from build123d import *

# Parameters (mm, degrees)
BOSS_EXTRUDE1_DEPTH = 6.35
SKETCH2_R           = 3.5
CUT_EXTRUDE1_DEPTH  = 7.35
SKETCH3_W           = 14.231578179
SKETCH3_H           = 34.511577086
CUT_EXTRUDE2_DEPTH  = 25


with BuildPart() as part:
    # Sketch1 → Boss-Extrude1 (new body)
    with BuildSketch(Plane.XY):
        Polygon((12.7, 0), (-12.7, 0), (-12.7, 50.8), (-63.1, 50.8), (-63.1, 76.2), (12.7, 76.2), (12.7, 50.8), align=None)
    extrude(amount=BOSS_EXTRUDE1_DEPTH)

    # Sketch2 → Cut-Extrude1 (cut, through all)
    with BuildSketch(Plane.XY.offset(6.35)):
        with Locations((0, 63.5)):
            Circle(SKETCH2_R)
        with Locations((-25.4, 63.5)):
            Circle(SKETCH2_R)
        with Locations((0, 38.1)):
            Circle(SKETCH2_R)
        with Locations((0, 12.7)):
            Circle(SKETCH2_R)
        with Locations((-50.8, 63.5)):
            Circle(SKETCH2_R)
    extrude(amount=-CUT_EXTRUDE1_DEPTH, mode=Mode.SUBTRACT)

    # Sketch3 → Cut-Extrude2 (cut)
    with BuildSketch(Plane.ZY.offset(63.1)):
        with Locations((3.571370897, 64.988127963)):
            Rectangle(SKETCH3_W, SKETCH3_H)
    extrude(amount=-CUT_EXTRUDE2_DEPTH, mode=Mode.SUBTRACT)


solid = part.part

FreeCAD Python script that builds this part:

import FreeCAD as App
import Part
import Sketcher

V = App.Vector
Q = App.Units.Quantity

doc = App.newDocument("Part")
body = doc.addObject("PartDesign::Body", "Body")

sketch1 = doc.addObject("Sketcher::SketchObject", "Sketch")
body.addObject(sketch1)
sketch1.AttachmentSupport = (doc.XY_Plane, [""])
sketch1.MapMode = "FlatFace"
sketch1.addGeometry([
    Part.LineSegment(V(-12.7, 0, 0), V(12.7, 0, 0)),
    Part.LineSegment(V(12.7, 0, 0), V(12.7, 76.2, 0)),
    Part.LineSegment(V(12.7, 76.2, 0), V(-63.1, 76.2, 0)),
    Part.LineSegment(V(-63.1, 76.2, 0), V(-63.1, 50.8, 0)),
    Part.LineSegment(V(-63.1, 50.8, 0), V(-12.7, 50.8, 0)),
    Part.LineSegment(V(-12.7, 50.8, 0), V(-12.7, 0, 0)),
], False)
sketch1.addConstraint([
    Sketcher.Constraint("Coincident", 0, 2, 1, 1),
    Sketcher.Constraint("Coincident", 1, 2, 2, 1),
    Sketcher.Constraint("Coincident", 2, 2, 3, 1),
    Sketcher.Constraint("Coincident", 3, 2, 4, 1),
    Sketcher.Constraint("Coincident", 4, 2, 5, 1),
    Sketcher.Constraint("Coincident", 5, 2, 0, 1),
    Sketcher.Constraint("Horizontal", 0),
    Sketcher.Constraint("Vertical", 1),
    Sketcher.Constraint("Horizontal", 2),
    Sketcher.Constraint("Vertical", 3),
    Sketcher.Constraint("Horizontal", 4),
    Sketcher.Constraint("Vertical", 5),
    Sketcher.Constraint("Symmetric", 0, 2, 5, 2, -1, 1),
    Sketcher.Constraint("Equal", 0, 3),
    Sketcher.Constraint("DistanceX", 0, 1, 0, 2, Q("25.4 mm")),
    Sketcher.Constraint("DistanceX", 2, 2, 2, 1, Q("75.8 mm")),
    Sketcher.Constraint("DistanceY", 1, 1, 1, 2, Q("76.2 mm")),
])
pad1 = doc.addObject("PartDesign::Pad", "Pad")
body.addObject(pad1)
pad1.Profile = sketch1
pad1.Length = 6.35

sketch2 = doc.addObject("Sketcher::SketchObject", "Sketch001")
body.addObject(sketch2)
sketch2.AttachmentSupport = (doc.XY_Plane, [""])
sketch2.MapMode = "FlatFace"
sketch2.AttachmentOffset = App.Placement(V(0, 0, 6.35), App.Rotation())
sketch2.addGeometry([
    Part.Circle(V(0, 63.5, 0), V(0, 0, 1), 3.5),
    Part.Circle(V(-25.4, 63.5, 0), V(0, 0, 1), 3.5),
    Part.Circle(V(0, 38.1, 0), V(0, 0, 1), 3.5),
    Part.Circle(V(0, 12.7, 0), V(0, 0, 1), 3.5),
    Part.Circle(V(-50.8, 63.5, 0), V(0, 0, 1), 3.5),
], False)
sketch2.addConstraint([
    Sketcher.Constraint("Equal", 0, 1),
    Sketcher.Constraint("Equal", 1, 2),
    Sketcher.Constraint("Equal", 2, 3),
    Sketcher.Constraint("Equal", 3, 4),
    Sketcher.Constraint("PointOnObject", 0, 3, -2),
    Sketcher.Constraint("PointOnObject", 2, 3, -2),
    Sketcher.Constraint("PointOnObject", 3, 3, -2),
    Sketcher.Constraint("Horizontal", 0, 3, 1, 3),
    Sketcher.Constraint("Horizontal", 1, 3, 4, 3),
    Sketcher.Constraint("Diameter", 0, Q("7 mm")),
    Sketcher.Constraint("DistanceY", -1, 1, 0, 3, Q("63.5 mm")),
    Sketcher.Constraint("DistanceX", 1, 3, -1, 1, Q("25.4 mm")),
    Sketcher.Constraint("DistanceY", -1, 1, 2, 3, Q("38.1 mm")),
    Sketcher.Constraint("DistanceY", -1, 1, 3, 3, Q("12.7 mm")),
    Sketcher.Constraint("DistanceX", 4, 3, -1, 1, Q("50.8 mm")),
])
pocket1 = doc.addObject("PartDesign::Pocket", "Pocket")
body.addObject(pocket1)
pocket1.Profile = sketch2
pocket1.Type = "ThroughAll"

sketch3 = doc.addObject("Sketcher::SketchObject", "Sketch002")
body.addObject(sketch3)
sketch3.AttachmentSupport = (doc.YZ_Plane, [""])
sketch3.MapMode = "FlatFace"
sketch3.AttachmentOffset = App.Placement(V(0, 0, -63.1), App.Rotation())
sketch3.addGeometry([
    Part.LineSegment(V(82.243917, -3.544418, 0), V(47.732339, -3.544418, 0)),
    Part.LineSegment(V(47.732339, -3.544418, 0), V(47.732339, 10.68716, 0)),
    Part.LineSegment(V(47.732339, 10.68716, 0), V(82.243917, 10.68716, 0)),
    Part.LineSegment(V(82.243917, 10.68716, 0), V(82.243917, -3.544418, 0)),
], False)
sketch3.addConstraint([
    Sketcher.Constraint("Coincident", 0, 2, 1, 1),
    Sketcher.Constraint("Coincident", 1, 2, 2, 1),
    Sketcher.Constraint("Coincident", 2, 2, 3, 1),
    Sketcher.Constraint("Coincident", 3, 2, 0, 1),
    Sketcher.Constraint("Horizontal", 0),
    Sketcher.Constraint("Vertical", 1),
    Sketcher.Constraint("Horizontal", 2),
    Sketcher.Constraint("Vertical", 3),
    Sketcher.Constraint("DistanceY", 1, 1, 1, 2, Q("14.231578 mm")),
    Sketcher.Constraint("DistanceX", 0, 2, 0, 1, Q("34.511577 mm")),
    Sketcher.Constraint("DistanceX", -1, 1, 0, 2, Q("47.732339 mm")),
    Sketcher.Constraint("DistanceY", 0, 2, -1, 1, Q("3.544418 mm")),
])
pocket2 = doc.addObject("PartDesign::Pocket", "Pocket001")
body.addObject(pocket2)
pocket2.Profile = sketch3
pocket2.Length = 25
pocket2.Reversed = True

doc.recompute()
